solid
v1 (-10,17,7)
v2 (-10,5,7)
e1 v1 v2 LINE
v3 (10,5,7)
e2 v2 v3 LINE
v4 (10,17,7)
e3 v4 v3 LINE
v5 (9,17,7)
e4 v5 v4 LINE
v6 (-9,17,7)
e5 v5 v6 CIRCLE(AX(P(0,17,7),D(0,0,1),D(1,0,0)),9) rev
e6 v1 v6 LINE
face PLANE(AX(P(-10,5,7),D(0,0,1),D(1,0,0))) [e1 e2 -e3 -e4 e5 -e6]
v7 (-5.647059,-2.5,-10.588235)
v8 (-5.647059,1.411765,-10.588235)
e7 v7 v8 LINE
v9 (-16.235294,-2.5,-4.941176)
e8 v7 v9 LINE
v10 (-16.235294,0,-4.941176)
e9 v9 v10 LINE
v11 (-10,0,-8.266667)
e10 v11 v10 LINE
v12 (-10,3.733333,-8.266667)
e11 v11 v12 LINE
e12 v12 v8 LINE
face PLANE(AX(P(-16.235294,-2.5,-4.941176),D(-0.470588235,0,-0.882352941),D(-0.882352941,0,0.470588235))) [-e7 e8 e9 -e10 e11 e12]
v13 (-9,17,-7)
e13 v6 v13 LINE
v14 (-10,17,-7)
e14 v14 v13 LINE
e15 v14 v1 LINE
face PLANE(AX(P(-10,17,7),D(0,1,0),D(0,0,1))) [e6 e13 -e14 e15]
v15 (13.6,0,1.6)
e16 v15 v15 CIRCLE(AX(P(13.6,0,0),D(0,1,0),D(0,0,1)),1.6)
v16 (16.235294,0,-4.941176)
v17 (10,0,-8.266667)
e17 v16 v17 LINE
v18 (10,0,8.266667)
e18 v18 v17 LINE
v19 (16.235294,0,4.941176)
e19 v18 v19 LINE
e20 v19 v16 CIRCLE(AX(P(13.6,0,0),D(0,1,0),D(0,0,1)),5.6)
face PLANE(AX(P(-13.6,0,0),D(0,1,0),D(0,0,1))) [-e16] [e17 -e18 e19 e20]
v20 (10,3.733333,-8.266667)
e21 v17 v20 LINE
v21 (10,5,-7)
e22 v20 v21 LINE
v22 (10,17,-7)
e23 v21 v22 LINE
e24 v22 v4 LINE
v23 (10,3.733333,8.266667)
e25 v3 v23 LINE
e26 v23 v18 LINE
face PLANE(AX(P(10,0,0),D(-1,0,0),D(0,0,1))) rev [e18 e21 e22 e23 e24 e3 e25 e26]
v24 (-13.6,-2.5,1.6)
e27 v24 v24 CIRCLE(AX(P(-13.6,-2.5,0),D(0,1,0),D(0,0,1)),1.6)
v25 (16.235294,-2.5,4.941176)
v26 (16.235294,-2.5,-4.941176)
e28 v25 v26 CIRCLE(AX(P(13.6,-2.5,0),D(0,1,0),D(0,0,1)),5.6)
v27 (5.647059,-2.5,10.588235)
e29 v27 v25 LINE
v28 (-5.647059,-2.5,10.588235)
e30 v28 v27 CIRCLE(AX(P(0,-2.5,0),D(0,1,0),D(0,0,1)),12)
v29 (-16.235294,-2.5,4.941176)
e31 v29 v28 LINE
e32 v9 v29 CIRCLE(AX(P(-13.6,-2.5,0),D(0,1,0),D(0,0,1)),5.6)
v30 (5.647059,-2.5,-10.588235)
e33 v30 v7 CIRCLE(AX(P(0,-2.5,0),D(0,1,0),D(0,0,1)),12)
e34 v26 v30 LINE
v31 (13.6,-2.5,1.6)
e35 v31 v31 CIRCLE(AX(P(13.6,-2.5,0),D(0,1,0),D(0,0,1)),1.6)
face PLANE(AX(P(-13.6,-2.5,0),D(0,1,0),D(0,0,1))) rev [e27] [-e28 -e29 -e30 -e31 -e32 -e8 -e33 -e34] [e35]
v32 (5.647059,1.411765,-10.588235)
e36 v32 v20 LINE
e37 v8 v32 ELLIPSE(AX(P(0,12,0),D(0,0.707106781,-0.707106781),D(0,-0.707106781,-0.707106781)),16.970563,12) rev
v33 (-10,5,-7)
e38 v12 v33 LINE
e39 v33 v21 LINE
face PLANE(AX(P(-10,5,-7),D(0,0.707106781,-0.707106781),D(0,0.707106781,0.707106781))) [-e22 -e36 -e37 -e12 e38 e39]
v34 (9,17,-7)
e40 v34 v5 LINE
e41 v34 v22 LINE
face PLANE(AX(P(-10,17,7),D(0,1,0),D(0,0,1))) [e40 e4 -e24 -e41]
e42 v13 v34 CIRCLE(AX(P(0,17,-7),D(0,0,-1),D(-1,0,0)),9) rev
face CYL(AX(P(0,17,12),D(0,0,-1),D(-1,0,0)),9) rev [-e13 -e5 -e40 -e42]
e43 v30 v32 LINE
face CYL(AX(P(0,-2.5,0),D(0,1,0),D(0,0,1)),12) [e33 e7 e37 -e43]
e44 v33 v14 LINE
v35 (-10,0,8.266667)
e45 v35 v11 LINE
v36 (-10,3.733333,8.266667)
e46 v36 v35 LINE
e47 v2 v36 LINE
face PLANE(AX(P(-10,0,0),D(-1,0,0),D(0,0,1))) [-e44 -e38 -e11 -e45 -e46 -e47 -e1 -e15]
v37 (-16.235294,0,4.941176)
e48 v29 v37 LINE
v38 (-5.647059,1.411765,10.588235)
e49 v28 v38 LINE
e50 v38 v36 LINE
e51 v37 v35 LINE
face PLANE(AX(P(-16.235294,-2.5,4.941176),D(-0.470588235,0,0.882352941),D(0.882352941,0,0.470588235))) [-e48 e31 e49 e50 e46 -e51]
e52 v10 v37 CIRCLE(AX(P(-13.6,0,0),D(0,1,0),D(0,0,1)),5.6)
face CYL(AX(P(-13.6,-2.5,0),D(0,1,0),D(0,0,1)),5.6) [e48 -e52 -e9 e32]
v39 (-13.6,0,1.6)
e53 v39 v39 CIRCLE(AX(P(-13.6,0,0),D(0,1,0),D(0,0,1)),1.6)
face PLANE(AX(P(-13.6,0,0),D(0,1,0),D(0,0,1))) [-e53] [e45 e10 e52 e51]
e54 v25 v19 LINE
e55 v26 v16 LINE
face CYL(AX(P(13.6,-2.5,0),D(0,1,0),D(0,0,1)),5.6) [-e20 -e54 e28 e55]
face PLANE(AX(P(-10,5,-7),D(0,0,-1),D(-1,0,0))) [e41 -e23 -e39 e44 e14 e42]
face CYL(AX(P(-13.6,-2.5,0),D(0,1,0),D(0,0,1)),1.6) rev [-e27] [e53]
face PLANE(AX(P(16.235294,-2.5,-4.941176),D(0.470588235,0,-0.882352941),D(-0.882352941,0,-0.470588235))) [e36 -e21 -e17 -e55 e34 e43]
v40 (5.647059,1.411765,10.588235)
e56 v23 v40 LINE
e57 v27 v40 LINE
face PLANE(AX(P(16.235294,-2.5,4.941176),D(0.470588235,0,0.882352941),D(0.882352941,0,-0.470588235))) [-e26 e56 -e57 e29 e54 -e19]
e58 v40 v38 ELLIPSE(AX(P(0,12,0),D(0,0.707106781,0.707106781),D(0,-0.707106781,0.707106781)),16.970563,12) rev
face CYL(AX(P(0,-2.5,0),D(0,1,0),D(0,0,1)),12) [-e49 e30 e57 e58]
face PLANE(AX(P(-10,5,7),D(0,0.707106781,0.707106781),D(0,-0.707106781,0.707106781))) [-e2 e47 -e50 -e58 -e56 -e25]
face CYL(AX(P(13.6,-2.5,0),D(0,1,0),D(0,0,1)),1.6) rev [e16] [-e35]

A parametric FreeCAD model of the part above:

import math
import FreeCAD as App
import Part
import Sketcher

doc = App.newDocument("Part")
body = doc.addObject("PartDesign::Body", "Body")

# Sketch on XZ plane
sketch1 = body.newObject("Sketcher::SketchObject", "Sketch")
sketch1.AttachmentSupport = (doc.getObject("XZ_Plane"), [""])
sketch1.MapMode = "FlatFace"
sketch1.addGeometry([
    Part.LineSegment(App.Vector(5.6, 10.6, 0), App.Vector(16.2, 4.9, 0)),  # 0
    Part.ArcOfCircle(Part.Circle(App.Vector(13.6, 0, 0), App.Vector(0, 0, 1), 5.6), math.radians(-62), math.radians(62)),  # 1
    Part.LineSegment(App.Vector(16.2, -4.9, 0), App.Vector(5.6, -10.6, 0)),  # 2
    Part.ArcOfCircle(Part.Circle(App.Vector(0, 0, 0), App.Vector(0, 0, 1), 12), math.radians(-118), math.radians(-62)),  # 3
    Part.LineSegment(App.Vector(-5.6, -10.6, 0), App.Vector(-16.2, -4.9, 0)),  # 4
    Part.ArcOfCircle(Part.Circle(App.Vector(-13.6, 0, 0), App.Vector(0, 0, 1), 5.6), math.radians(118), math.radians(242)),  # 5
    Part.LineSegment(App.Vector(-16.2, 4.9, 0), App.Vector(-5.6, 10.6, 0)),  # 6
    Part.ArcOfCircle(Part.Circle(App.Vector(0, 0, 0), App.Vector(0, 0, 1), 12), math.radians(62), math.radians(118)),  # 7
    Part.Circle(App.Vector(13.6, 0, 0), App.Vector(0, 0, 1), 1.6),  # 8
    Part.Circle(App.Vector(-13.6, 0, 0), App.Vector(0, 0, 1), 1.6),  # 9
], False)
sketch1.addConstraint([
    Sketcher.Constraint("Tangent", 0, 2, 1, 2),
    Sketcher.Constraint("Tangent", 1, 1, 2, 1),
    Sketcher.Constraint("Tangent", 2, 2, 3, 2),
    Sketcher.Constraint("Tangent", 3, 1, 4, 1),
    Sketcher.Constraint("Tangent", 4, 2, 5, 2),
    Sketcher.Constraint("Tangent", 5, 1, 6, 1),
    Sketcher.Constraint("Tangent", 6, 2, 7, 2),
    Sketcher.Constraint("Tangent", 7, 1, 0, 1),
    Sketcher.Constraint("Coincident", 3, 3, -1, 1),
    Sketcher.Constraint("Coincident", 7, 3, -1, 1),
    Sketcher.Constraint("Coincident", 8, 3, 1, 3),
    Sketcher.Constraint("Coincident", 9, 3, 5, 3),
    Sketcher.Constraint("Equal", 1, 5),
    Sketcher.Constraint("Equal", 3, 7),
    Sketcher.Constraint("Equal", 8, 9),
    Sketcher.Constraint("Symmetric", 1, 3, 5, 3, -1, 1),
    Sketcher.Constraint("PointOnObject", 1, 3, -1),
    Sketcher.Constraint("Radius", 3, 12.0),
    Sketcher.Constraint("Diameter", 8, 3.2),
    Sketcher.Constraint("Radius", 1, 5.6),
    Sketcher.Constraint("Distance", 0, 12.0),
])
pad1 = body.newObject("PartDesign::Pad", "Pad")
pad1.Profile = sketch1
pad1.Length = 2.5

# Sketch on YZ plane
sketch2 = body.newObject("Sketcher::SketchObject", "Sketch001")
sketch2.AttachmentSupport = (doc.getObject("YZ_Plane"), [""])
sketch2.MapMode = "FlatFace"
sketch2.addGeometry([
    Part.LineSegment(App.Vector(0, 12, 0), App.Vector(0, -12, 0)),  # 0
    Part.LineSegment(App.Vector(0, -12, 0), App.Vector(5, -7, 0)),  # 1
    Part.LineSegment(App.Vector(5, -7, 0), App.Vector(17, -7, 0)),  # 2
    Part.LineSegment(App.Vector(17, -7, 0), App.Vector(17, 7, 0)),  # 3
    Part.LineSegment(App.Vector(17, 7, 0), App.Vector(5, 7, 0)),  # 4
    Part.LineSegment(App.Vector(5, 7, 0), App.Vector(0, 12, 0)),  # 5
], False)
sketch2.addConstraint([
    Sketcher.Constraint("Coincident", 0, 2, 1, 1),
    Sketcher.Constraint("Coincident", 1, 2, 2, 1),
    Sketcher.Constraint("Coincident", 2, 2, 3, 1),
    Sketcher.Constraint("Coincident", 3, 2, 4, 1),
    Sketcher.Constraint("Coincident", 4, 2, 5, 1),
    Sketcher.Constraint("Coincident", 5, 2, 0, 1),
    Sketcher.Constraint("Vertical", 0),
    Sketcher.Constraint("Horizontal", 2),
    Sketcher.Constraint("Vertical", 3),
    Sketcher.Constraint("Horizontal", 4),
    Sketcher.Constraint("Symmetric", 0, 2, 5, 2, -1, 1),
    Sketcher.Constraint("Symmetric", 1, 2, 4, 2, -1),
    Sketcher.Constraint("Perpendicular", 1, 5),
    Sketcher.Constraint("DistanceX", 2, 1, 2, 2, 12.0),
    Sketcher.Constraint("DistanceY", 0, 2, 0, 1, 24.0),
    Sketcher.Constraint("DistanceY", 3, 1, 3, 2, 14.0),
])
pad2 = body.newObject("PartDesign::Pad", "Pad001")
pad2.Profile = sketch2
pad2.Type = "TwoLengths"
pad2.Length = 10
pad2.Length2 = 10

# Sketch on XZ plane
sketch3 = body.newObject("Sketcher::SketchObject", "Sketch002")
sketch3.AttachmentSupport = (doc.getObject("XZ_Plane"), [""])
sketch3.MapMode = "FlatFace"
sketch3.AttachmentOffset = App.Placement(App.Vector(0, 0, -12), App.Rotation())
sketch3.addGeometry([
    Part.Circle(App.Vector(0, 0, 0), App.Vector(0, 0, 1), 25),  # 0
    Part.LineSegment(App.Vector(10, 8.3, 0), App.Vector(5.6, 10.6, 0)),  # 1
    Part.ArcOfCircle(Part.Circle(App.Vector(0, 0, 0), App.Vector(0, 0, 1), 12), math.radians(62), math.radians(90)),  # 2
    Part.ArcOfCircle(Part.Circle(App.Vector(0, 0, 0), App.Vector(0, 0, 1), 12), math.radians(90), math.radians(118)),  # 3
    Part.LineSegment(App.Vector(-5.6, 10.6, 0), App.Vector(-10, 8.3, 0)),  # 4
    Part.LineSegment(App.Vector(-10, 8.3, 0), App.Vector(-16.2, 4.9, 0)),  # 5
    Part.ArcOfCircle(Part.Circle(App.Vector(-13.6, 0, 0), App.Vector(0, 0, 1), 5.6), math.radians(118), math.radians(242)),  # 6
    Part.LineSegment(App.Vector(-16.2, -4.9, 0), App.Vector(-10, -8.3, 0)),  # 7
    Part.LineSegment(App.Vector(-10, -8.3, 0), App.Vector(-5.6, -10.6, 0)),  # 8
    Part.ArcOfCircle(Part.Circle(App.Vector(0, 0, 0), App.Vector(0, 0, 1), 12), math.radians(-118), math.radians(-90)),  # 9
    Part.ArcOfCircle(Part.Circle(App.Vector(0, 0, 0), App.Vector(0, 0, 1), 12), math.radians(-90), math.radians(-62)),  # 10
    Part.LineSegment(App.Vector(5.6, -10.6, 0), App.Vector(10, -8.3, 0)),  # 11
    Part.LineSegment(App.Vector(10, -8.3, 0), App.Vector(16.2, -4.9, 0)),  # 12
    Part.ArcOfCircle(Part.Circle(App.Vector(13.6, 0, 0), App.Vector(0, 0, 1), 5.6), math.radians(-62), math.radians(62)),  # 13
    Part.LineSegment(App.Vector(16.2, 4.9, 0), App.Vector(10, 8.3, 0)),  # 14
], False)
sketch3.addConstraint([
    Sketcher.Constraint("Tangent", 1, 2, 2, 1),
    Sketcher.Constraint("Tangent", 2, 2, 3, 1),
    Sketcher.Constraint("Tangent", 3, 2, 4, 1),
    Sketcher.Constraint("Coincident", 4, 2, 5, 1),
    Sketcher.Constraint("Tangent", 5, 2, 6, 1),
    Sketcher.Constraint("Tangent", 6, 2, 7, 1),
    Sketcher.Constraint("Coincident", 7, 2, 8, 1),
    Sketcher.Constraint("Tangent", 8, 2, 9, 1),
    Sketcher.Constraint("Tangent", 9, 2, 10, 1),
    Sketcher.Constraint("Tangent", 10, 2, 11, 1),
    Sketcher.Constraint("Coincident", 11, 2, 12, 1),
    Sketcher.Constraint("Tangent", 12, 2, 13, 1),
    Sketcher.Constraint("Tangent", 13, 2, 14, 1),
    Sketcher.Constraint("Coincident", 14, 2, 1, 1),
    Sketcher.Constraint("Coincident", 0, 3, -1, 1),
    Sketcher.Constraint("Coincident", 2, 3, -1, 1),
    Sketcher.Constraint("Coincident", 9, 3, -1, 1),
    Sketcher.Constraint("Equal", 2, 3),
    Sketcher.Constraint("Equal", 3, 9),
    Sketcher.Constraint("Equal", 9, 10),
    Sketcher.Constraint("Equal", 6, 13),
    Sketcher.Constraint("Symmetric", 6, 3, 13, 3, -1, 1),
    Sketcher.Constraint("Symmetric", 4, 2, 11, 2, -1, 1),
    Sketcher.Constraint("Symmetric", 7, 2, 14, 2, -1, 1),
    Sketcher.Constraint("Symmetric", 7, 2, 11, 2, -2),
    Sketcher.Constraint("PointOnObject", 6, 3, -1),
    Sketcher.Constraint("PointOnObject", 2, 2, -2),
    Sketcher.Constraint("PointOnObject", 9, 2, -2),
    Sketcher.Constraint("Parallel", 4, 5),
    Sketcher.Constraint("Diameter", 0, 50.0),
    Sketcher.Constraint("Radius", 2, 12.0),
    Sketcher.Constraint("Radius", 6, 5.6),
    Sketcher.Constraint("DistanceX", 4, 2, -1, 1, 10.0),
    Sketcher.Constraint("DistanceX", 6, 3, -1, 1, 13.6),
])
pocket1 = body.newObject("PartDesign::Pocket", "Pocket")
pocket1.Profile = sketch3
pocket1.Length = 12
pocket1.Reversed = True

# Sketch on XY plane
sketch4 = body.newObject("Sketcher::SketchObject", "Sketch003")
sketch4.AttachmentSupport = (doc.getObject("XY_Plane"), [""])
sketch4.MapMode = "FlatFace"
sketch4.addGeometry(Part.Circle(App.Vector(0, 17, 0), App.Vector(0, 0, 1), 9), False)
sketch4.addConstraint([
    Sketcher.Constraint("PointOnObject", 0, 3, -2),
    Sketcher.Constraint("Diameter", 0, 18.0),
    Sketcher.Constraint("DistanceY", -1, 1, 0, 3, 17.0),
])
pocket2 = body.newObject("PartDesign::Pocket", "Pocket001")
pocket2.Profile = sketch4
pocket2.Type = "ThroughAll"
pocket2.Midplane = True

doc.recompute()
